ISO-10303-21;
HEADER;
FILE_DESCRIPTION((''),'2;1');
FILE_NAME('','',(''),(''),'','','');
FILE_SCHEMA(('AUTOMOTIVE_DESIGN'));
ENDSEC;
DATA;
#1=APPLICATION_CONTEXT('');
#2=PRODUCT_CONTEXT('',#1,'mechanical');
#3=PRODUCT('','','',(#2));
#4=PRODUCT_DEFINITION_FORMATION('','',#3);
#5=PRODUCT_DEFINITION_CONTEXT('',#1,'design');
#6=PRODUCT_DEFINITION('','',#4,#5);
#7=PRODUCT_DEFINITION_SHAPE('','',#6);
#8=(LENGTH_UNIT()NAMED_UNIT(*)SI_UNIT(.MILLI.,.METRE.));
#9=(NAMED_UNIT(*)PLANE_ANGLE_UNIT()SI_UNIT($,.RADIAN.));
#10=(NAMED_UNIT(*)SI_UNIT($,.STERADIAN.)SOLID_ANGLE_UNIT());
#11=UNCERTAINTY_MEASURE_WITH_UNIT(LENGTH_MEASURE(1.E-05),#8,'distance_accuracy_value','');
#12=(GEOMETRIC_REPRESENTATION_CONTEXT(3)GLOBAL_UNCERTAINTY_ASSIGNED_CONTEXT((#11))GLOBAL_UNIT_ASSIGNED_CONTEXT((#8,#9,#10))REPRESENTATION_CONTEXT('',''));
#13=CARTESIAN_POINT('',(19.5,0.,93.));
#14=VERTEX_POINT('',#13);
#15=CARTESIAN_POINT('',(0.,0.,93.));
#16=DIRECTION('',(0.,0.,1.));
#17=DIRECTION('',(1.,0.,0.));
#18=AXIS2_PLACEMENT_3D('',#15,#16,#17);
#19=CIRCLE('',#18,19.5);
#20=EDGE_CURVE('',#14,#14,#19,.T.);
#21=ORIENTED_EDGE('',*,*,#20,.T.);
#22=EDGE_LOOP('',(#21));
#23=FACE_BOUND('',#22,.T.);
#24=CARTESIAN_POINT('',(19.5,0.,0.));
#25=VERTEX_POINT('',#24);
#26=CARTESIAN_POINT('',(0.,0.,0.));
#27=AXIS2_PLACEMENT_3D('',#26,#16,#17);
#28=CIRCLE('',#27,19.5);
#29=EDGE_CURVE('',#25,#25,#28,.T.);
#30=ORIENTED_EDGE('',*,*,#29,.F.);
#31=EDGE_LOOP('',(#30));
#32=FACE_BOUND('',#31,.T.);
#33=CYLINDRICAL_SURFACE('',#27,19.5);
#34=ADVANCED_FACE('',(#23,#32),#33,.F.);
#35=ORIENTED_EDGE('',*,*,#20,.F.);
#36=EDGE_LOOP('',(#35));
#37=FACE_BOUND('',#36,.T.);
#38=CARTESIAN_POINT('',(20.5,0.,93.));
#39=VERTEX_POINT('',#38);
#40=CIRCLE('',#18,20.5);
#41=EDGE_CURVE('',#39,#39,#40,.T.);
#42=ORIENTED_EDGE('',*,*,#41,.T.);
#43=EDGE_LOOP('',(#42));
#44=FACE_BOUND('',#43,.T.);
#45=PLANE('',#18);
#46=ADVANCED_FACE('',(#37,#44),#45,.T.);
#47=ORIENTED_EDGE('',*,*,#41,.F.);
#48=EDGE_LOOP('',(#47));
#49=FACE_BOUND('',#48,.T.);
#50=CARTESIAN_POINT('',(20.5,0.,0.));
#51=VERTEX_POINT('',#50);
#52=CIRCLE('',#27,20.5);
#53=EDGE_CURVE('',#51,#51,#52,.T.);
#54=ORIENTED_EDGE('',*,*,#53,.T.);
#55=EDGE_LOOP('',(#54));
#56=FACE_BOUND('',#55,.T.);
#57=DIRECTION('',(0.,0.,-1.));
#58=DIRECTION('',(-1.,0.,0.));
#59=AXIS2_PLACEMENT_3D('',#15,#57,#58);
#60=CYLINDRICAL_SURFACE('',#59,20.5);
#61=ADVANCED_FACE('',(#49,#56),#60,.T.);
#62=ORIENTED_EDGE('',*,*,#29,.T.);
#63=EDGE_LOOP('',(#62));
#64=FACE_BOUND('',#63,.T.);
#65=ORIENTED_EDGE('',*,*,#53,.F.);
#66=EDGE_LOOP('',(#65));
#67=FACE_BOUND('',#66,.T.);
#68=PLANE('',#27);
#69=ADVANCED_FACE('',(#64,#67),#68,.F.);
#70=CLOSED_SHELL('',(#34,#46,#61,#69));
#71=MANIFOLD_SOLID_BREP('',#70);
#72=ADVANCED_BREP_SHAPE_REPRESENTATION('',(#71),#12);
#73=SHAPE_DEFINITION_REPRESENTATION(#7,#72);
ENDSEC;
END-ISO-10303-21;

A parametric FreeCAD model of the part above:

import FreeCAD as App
import Part
import Sketcher
from FreeCAD import Vector

doc = App.newDocument("Part")
body = doc.addObject("PartDesign::Body", "Body")

sketch1 = body.newObject("Sketcher::SketchObject", "Sketch")
sketch1.AttachmentSupport = (doc.getObject("XY_Plane"), [""])
sketch1.MapMode = "FlatFace"
sketch1.addGeometry(Part.Circle(Vector(0, 0, 0), Vector(0, 0, 1), 20), False)
sketch1.addConstraint([
    Sketcher.Constraint("Coincident", 0, 3, -1, 1),
    Sketcher.Constraint("Diameter", 0, 41.0),
])
pad1 = body.newObject("PartDesign::Pad", "Pad")
pad1.Profile = sketch1
pad1.Length = 93

sketch2 = body.newObject("Sketcher::SketchObject", "Sketch001")
sketch2.AttachmentSupport = (doc.getObject("XY_Plane"), [""])
sketch2.MapMode = "FlatFace"
sketch2.AttachmentOffset = App.Placement(Vector(0, 0, 93), App.Rotation())
sketch2.addGeometry(Part.Circle(Vector(0, 0, 0), Vector(0, 0, 1), 20), False)
sketch2.addConstraint([
    Sketcher.Constraint("Coincident", 0, 3, -1, 1),
    Sketcher.Constraint("Diameter", 0, 39.0),
])
pocket1 = body.newObject("PartDesign::Pocket", "Pocket")
pocket1.Profile = sketch2
pocket1.Type = "ThroughAll"

doc.recompute()
